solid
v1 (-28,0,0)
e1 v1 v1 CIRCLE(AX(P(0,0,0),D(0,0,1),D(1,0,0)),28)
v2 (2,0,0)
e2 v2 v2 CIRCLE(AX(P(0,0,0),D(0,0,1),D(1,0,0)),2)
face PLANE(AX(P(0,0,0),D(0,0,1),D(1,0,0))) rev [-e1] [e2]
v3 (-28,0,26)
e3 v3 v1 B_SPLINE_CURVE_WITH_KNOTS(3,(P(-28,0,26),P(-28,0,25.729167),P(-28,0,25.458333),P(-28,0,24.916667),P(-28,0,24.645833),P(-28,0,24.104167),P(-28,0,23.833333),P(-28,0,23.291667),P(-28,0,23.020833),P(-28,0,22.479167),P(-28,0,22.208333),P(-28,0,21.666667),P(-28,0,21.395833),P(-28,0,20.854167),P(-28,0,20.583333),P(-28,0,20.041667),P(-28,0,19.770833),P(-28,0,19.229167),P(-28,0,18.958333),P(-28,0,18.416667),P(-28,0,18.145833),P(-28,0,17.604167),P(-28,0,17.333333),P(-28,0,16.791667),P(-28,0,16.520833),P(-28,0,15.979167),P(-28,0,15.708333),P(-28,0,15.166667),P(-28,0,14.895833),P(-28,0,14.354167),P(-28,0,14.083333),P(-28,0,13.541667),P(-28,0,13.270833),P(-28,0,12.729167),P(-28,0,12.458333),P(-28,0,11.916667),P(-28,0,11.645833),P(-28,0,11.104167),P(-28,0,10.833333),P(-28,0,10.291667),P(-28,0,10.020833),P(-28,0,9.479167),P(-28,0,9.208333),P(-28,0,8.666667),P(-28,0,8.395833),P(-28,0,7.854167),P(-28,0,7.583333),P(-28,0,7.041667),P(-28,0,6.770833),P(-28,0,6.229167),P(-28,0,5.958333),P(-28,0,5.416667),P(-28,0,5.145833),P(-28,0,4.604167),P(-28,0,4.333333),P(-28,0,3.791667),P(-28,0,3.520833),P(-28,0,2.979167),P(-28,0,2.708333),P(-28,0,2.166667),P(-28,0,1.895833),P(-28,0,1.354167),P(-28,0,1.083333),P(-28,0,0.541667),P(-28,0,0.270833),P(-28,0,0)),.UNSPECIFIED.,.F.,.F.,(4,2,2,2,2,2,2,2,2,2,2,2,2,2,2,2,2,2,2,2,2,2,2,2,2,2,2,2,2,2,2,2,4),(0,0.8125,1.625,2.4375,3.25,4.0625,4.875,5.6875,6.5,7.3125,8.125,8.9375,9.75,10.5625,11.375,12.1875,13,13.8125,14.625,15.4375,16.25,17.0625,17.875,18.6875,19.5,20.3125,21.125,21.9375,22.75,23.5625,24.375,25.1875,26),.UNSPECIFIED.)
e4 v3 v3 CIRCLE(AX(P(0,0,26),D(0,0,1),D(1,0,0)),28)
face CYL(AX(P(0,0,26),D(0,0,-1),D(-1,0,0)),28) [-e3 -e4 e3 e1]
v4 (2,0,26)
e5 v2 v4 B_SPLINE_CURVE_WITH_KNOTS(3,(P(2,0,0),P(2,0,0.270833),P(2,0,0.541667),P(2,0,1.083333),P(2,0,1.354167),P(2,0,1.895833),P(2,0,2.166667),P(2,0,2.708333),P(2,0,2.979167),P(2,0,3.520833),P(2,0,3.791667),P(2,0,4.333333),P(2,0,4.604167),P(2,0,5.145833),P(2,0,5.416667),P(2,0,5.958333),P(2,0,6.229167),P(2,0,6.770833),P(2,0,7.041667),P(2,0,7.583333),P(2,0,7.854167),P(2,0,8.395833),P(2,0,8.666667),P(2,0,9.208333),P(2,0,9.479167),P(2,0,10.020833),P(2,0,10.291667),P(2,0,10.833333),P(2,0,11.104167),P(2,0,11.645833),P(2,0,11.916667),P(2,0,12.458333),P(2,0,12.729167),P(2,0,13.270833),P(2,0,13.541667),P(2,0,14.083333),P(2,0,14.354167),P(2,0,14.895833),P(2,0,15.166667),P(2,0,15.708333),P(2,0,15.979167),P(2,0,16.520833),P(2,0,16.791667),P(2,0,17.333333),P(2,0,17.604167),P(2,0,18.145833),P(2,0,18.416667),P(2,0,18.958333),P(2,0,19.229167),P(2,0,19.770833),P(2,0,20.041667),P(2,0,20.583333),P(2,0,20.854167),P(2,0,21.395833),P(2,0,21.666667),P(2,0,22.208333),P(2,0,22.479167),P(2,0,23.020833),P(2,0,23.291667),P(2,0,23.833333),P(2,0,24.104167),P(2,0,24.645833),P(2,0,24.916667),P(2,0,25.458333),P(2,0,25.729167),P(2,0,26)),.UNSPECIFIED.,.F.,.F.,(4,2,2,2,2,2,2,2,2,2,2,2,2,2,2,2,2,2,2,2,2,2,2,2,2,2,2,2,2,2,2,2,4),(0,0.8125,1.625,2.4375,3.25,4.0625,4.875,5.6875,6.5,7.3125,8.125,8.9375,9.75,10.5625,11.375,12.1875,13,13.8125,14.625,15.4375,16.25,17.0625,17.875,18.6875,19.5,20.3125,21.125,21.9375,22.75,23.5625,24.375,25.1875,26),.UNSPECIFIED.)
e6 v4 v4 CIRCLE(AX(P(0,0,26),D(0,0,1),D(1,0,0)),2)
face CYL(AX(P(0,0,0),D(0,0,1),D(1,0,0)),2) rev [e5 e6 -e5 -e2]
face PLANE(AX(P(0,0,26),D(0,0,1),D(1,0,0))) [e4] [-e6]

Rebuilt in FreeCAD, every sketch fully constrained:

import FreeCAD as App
import Part
import Sketcher

V = App.Vector
Q = App.Units.Quantity

doc = App.newDocument("Part")
body = doc.addObject("PartDesign::Body", "Body")

# Sketch on XY plane
sketch1 = body.newObject("Sketcher::SketchObject", "Sketch")
sketch1.AttachmentSupport = (doc.getObject("XY_Plane"), [""])
sketch1.MapMode = "FlatFace"
sketch1.addGeometry(Part.Circle(V(0, 0, 0), V(0, 0, 1), 28), False)
sketch1.addConstraint(Sketcher.Constraint("Coincident", 0, 3, -1, 1))
sketch1.addConstraint(Sketcher.Constraint("Diameter", 0, Q("56 mm")))
pad1 = body.newObject("PartDesign::Pad", "Pad")
pad1.Profile = sketch1
pad1.Length = 26

# Sketch on XY plane
sketch2 = body.newObject("Sketcher::SketchObject", "Sketch001")
sketch2.AttachmentSupport = (doc.getObject("XY_Plane"), [""])
sketch2.MapMode = "FlatFace"
sketch2.AttachmentOffset = App.Placement(V(0, 0, 26), App.Rotation())
sketch2.addGeometry(Part.Circle(V(0, 0, 0), V(0, 0, 1), 2), False)
sketch2.addConstraint(Sketcher.Constraint("Coincident", 0, 3, -1, 1))
sketch2.addConstraint(Sketcher.Constraint("Diameter", 0, Q("4 mm")))
pocket1 = body.newObject("PartDesign::Pocket", "Pocket")
pocket1.Profile = sketch2
pocket1.Length = 26

doc.recompute()
